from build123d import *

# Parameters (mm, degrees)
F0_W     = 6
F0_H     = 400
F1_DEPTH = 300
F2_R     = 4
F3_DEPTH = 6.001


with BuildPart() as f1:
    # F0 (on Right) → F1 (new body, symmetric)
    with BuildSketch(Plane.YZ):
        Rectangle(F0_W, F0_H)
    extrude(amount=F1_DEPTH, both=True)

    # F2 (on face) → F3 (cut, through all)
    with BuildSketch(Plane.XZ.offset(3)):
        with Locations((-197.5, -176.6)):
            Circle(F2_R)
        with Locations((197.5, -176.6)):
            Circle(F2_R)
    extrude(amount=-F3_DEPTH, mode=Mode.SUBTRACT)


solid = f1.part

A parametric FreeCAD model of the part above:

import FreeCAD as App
import Part
import Sketcher
from FreeCAD import Vector
Q = App.Units.Quantity


def add_polygon(sketch, points):
    """Adds a closed chain of lines whose ends are joined by coincident constraints."""
    first, n = sketch.GeometryCount, len(points)
    for a, b in zip(points, points[1:] + points[:1]):
        sketch.addGeometry(Part.LineSegment(App.Vector(*a, 0), App.Vector(*b, 0)), False)
    for i in range(n):
        sketch.addConstraint(Sketcher.Constraint("Coincident", first + i, 2, first + (i + 1) % n, 1))

doc = App.newDocument("Part")
body = doc.addObject("PartDesign::Body", "Body")

# Sketch on YZ plane
sketch1 = body.newObject("Sketcher::SketchObject", "Sketch")
sketch1.AttachmentSupport = (doc.getObject("YZ_Plane"), [""])
sketch1.MapMode = "FlatFace"
add_polygon(sketch1, [(-3, 200), (-3, -200), (3, -200), (3, 200)])  # lines 0-3
sketch1.addConstraint([
    Sketcher.Constraint("Vertical", 0),
    Sketcher.Constraint("Horizontal", 1),
    Sketcher.Constraint("Vertical", 2),
    Sketcher.Constraint("Horizontal", 3),
    Sketcher.Constraint("Symmetric", 0, 2, 2, 2, -1, 1),
    Sketcher.Constraint("DistanceX", 1, 1, 1, 2, Q("6 mm")),
    Sketcher.Constraint("DistanceY", 0, 2, 0, 1, Q("400 mm")),
])
pad1 = body.newObject("PartDesign::Pad", "Pad")
pad1.Profile = sketch1
pad1.Length = 600
pad1.Midplane = True

# Sketch on XZ plane
sketch2 = body.newObject("Sketcher::SketchObject", "Sketch001")
sketch2.AttachmentSupport = (doc.getObject("XZ_Plane"), [""])
sketch2.MapMode = "FlatFace"
sketch2.AttachmentOffset = App.Placement(Vector(0, 0, 3), App.Rotation())
sketch2.addGeometry([
    Part.Circle(Vector(-197.5, -176.6, 0), Vector(0, 0, 1), 4),
    Part.Circle(Vector(197.5, -176.6, 0), Vector(0, 0, 1), 4),
], False)
sketch2.addConstraint([
    Sketcher.Constraint("Equal", 0, 1),
    Sketcher.Constraint("Symmetric", 0, 3, 1, 3, -2),
    Sketcher.Constraint("Diameter", 0, Q("8 mm")),
    Sketcher.Constraint("DistanceX", 0, 3, 1, 3, Q("395 mm")),
    Sketcher.Constraint("DistanceY", 0, 3, -1, 1, Q("176.6 mm")),
])
pocket1 = body.newObject("PartDesign::Pocket", "Pocket")
pocket1.Profile = sketch2
pocket1.Type = "ThroughAll"

doc.recompute()
